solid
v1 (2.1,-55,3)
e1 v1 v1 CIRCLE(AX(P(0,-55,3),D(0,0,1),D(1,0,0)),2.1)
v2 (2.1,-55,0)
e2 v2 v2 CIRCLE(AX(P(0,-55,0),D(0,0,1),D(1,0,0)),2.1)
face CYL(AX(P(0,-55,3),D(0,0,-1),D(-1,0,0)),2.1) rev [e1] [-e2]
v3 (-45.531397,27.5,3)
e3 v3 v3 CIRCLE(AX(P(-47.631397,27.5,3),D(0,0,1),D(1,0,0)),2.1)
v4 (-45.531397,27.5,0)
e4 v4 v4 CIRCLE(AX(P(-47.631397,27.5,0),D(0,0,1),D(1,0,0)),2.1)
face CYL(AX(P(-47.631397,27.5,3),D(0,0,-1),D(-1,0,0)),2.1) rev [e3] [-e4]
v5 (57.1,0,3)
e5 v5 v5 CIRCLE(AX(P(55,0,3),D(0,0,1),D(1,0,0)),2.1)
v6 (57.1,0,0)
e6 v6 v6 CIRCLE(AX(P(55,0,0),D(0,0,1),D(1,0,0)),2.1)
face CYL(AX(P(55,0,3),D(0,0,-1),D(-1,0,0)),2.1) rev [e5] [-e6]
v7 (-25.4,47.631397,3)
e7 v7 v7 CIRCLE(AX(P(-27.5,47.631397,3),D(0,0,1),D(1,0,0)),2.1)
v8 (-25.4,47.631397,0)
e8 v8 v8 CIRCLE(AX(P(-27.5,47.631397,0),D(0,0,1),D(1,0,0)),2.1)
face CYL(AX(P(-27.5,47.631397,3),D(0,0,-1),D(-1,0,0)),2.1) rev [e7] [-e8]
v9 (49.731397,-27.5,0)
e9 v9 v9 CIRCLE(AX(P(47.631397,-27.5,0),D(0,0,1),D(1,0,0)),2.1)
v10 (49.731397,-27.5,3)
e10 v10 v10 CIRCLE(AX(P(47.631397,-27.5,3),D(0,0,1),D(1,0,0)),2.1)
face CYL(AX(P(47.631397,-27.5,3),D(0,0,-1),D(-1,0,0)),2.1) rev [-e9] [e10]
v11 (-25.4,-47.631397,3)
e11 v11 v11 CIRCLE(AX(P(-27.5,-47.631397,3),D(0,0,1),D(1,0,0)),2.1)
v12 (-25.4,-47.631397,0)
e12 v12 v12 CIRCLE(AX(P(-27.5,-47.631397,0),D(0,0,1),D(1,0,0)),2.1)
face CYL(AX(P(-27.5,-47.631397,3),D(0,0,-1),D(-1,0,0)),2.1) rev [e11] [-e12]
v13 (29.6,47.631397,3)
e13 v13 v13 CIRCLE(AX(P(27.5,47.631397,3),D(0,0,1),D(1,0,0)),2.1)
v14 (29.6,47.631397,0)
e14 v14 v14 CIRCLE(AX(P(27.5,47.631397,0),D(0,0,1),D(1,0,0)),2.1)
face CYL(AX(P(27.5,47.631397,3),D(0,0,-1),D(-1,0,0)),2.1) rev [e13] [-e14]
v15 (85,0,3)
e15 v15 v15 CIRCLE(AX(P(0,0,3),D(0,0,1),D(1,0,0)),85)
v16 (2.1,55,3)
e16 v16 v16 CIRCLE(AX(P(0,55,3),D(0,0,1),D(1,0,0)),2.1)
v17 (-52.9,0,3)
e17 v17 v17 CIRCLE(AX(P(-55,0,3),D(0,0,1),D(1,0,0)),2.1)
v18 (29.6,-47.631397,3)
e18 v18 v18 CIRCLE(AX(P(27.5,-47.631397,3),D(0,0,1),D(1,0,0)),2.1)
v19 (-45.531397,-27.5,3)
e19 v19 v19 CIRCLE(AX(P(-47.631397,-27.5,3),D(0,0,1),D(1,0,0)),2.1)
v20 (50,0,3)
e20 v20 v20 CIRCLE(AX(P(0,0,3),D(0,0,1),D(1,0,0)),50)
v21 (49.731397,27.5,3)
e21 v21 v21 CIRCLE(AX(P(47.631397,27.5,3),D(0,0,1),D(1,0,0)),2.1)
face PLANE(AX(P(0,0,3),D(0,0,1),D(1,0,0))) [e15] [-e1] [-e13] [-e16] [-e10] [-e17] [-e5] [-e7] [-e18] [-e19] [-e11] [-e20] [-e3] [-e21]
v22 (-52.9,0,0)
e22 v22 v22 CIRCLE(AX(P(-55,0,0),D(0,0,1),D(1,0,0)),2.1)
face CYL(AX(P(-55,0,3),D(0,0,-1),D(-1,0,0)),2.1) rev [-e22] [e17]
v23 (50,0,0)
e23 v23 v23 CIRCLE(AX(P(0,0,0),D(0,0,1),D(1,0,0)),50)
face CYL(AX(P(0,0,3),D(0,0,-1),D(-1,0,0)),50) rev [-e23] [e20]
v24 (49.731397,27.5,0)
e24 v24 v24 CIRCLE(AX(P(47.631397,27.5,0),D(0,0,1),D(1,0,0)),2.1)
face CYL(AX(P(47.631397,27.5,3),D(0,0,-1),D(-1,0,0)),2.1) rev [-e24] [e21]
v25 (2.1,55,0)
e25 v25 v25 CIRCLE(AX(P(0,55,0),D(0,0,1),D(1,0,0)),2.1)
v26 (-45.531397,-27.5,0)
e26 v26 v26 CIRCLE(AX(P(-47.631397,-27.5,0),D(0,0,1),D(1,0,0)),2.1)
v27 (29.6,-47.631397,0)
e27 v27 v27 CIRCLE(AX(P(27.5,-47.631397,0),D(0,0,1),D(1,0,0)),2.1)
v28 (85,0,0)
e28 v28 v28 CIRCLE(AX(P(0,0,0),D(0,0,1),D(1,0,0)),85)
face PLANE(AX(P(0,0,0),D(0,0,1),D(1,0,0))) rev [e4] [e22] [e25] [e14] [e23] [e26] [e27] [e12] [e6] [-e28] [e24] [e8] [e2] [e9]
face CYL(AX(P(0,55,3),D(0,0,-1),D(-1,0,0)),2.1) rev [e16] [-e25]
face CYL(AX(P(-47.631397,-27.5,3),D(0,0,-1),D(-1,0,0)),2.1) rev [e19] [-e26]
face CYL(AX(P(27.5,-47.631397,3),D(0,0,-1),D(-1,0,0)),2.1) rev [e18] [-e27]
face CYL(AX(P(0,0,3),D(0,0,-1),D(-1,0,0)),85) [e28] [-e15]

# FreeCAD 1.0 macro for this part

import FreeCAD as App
import Part
import Sketcher
from FreeCAD import Vector

doc = App.newDocument("Part")
params = doc.addObject("Spreadsheet::Sheet", "Params")
for row, (alias, value) in enumerate([
    ("sketch1_diameter", "170 mm"),
    ("sketch1_diameter2", "100 mm"),
    ("sketch1_diameter3", "4.2 mm"),
    ("pad1_length", "3 mm"),
], start=1):
    params.set(f"A{row}", alias)
    params.set(f"B{row}", "=" + value)
    params.setAlias(f"B{row}", alias)

body = doc.addObject("PartDesign::Body", "Body")

# Sketch on XY plane
sketch1 = body.newObject("Sketcher::SketchObject", "Sketch")
sketch1.AttachmentSupport = (doc.getObject("XY_Plane"), [""])
sketch1.MapMode = "FlatFace"
sketch1.addGeometry(Part.Circle(Vector(0, 0, 0), Vector(0, 0, 1), 85), False)
sketch1.addGeometry(Part.Circle(Vector(-27.5, -47.6, 0), Vector(0, 0, 1), 2.1), False)
sketch1.addGeometry(Part.Circle(Vector(-47.6, -27.5, 0), Vector(0, 0, 1), 2.1), False)
sketch1.addGeometry(Part.Circle(Vector(0, -55, 0), Vector(0, 0, 1), 2.1), False)
sketch1.addGeometry(Part.Circle(Vector(27.5, -47.6, 0), Vector(0, 0, 1), 2.1), False)
sketch1.addGeometry(Part.Circle(Vector(47.6, -27.5, 0), Vector(0, 0, 1), 2.1), False)
sketch1.addGeometry(Part.Circle(Vector(-55, 0, 0), Vector(0, 0, 1), 2.1), False)
sketch1.addGeometry(Part.Circle(Vector(-47.6, 27.5, 0), Vector(0, 0, 1), 2.1), False)
sketch1.addGeometry(Part.Circle(Vector(-27.5, 47.6, 0), Vector(0, 0, 1), 2.1), False)
sketch1.addGeometry(Part.Circle(Vector(0, 0, 0), Vector(0, 0, 1), 50), False)
sketch1.addGeometry(Part.Circle(Vector(55, 0, 0), Vector(0, 0, 1), 2.1), False)
sketch1.addGeometry(Part.Circle(Vector(47.6, 27.5, 0), Vector(0, 0, 1), 2.1), False)
sketch1.addGeometry(Part.Circle(Vector(0, 55, 0), Vector(0, 0, 1), 2.1), False)
sketch1.addGeometry(Part.Circle(Vector(27.5, 47.6, 0), Vector(0, 0, 1), 2.1), False)
sketch1.addConstraint(Sketcher.Constraint("Coincident", 0, 3, -1, 1))
sketch1.addConstraint(Sketcher.Constraint("Coincident", 9, 3, -1, 1))
sketch1.addConstraint(Sketcher.Constraint("Equal", 1, 2))
sketch1.addConstraint(Sketcher.Constraint("Equal", 2, 3))
sketch1.addConstraint(Sketcher.Constraint("Equal", 3, 4))
sketch1.addConstraint(Sketcher.Constraint("Equal", 4, 5))
sketch1.addConstraint(Sketcher.Constraint("Equal", 5, 6))
sketch1.addConstraint(Sketcher.Constraint("Equal", 6, 7))
sketch1.addConstraint(Sketcher.Constraint("Equal", 7, 8))
sketch1.addConstraint(Sketcher.Constraint("Equal", 8, 10))
sketch1.addConstraint(Sketcher.Constraint("Equal", 10, 11))
sketch1.addConstraint(Sketcher.Constraint("Equal", 11, 12))
sketch1.addConstraint(Sketcher.Constraint("Equal", 12, 13))
sketch1.addConstraint(Sketcher.Constraint("Symmetric", 5, 3, 7, 3, -1, 1))
sketch1.addConstraint(Sketcher.Constraint("Symmetric", 4, 3, 8, 3, -1, 1))
sketch1.addConstraint(Sketcher.Constraint("Symmetric", 6, 3, 10, 3, -1, 1))
sketch1.addConstraint(Sketcher.Constraint("Symmetric", 2, 3, 11, 3, -1, 1))
sketch1.addConstraint(Sketcher.Constraint("Symmetric", 3, 3, 12, 3, -1, 1))
sketch1.addConstraint(Sketcher.Constraint("Symmetric", 1, 3, 13, 3, -1, 1))
sketch1.addConstraint(Sketcher.Constraint("Symmetric", 1, 3, 4, 3, -2))
sketch1.addConstraint(Sketcher.Constraint("Symmetric", 2, 3, 5, 3, -2))
sketch1.addConstraint(Sketcher.Constraint("PointOnObject", 3, 3, -2))
sketch1.addConstraint(Sketcher.Constraint("PointOnObject", 6, 3, -1))
sketch1.addConstraint(Sketcher.Constraint("Diameter", 0, 170.0))
sketch1.addConstraint(Sketcher.Constraint("Diameter", 9, 100.0))
sketch1.addConstraint(Sketcher.Constraint("Diameter", 1, 4.2))
sketch1.addConstraint(Sketcher.Constraint("DistanceY", 3, 3, -1, 1, 55.0))
sketch1.addConstraint(Sketcher.Constraint("DistanceX", 6, 3, -1, 1, 55.0))
sketch1.addConstraint(Sketcher.Constraint("DistanceX", 1, 3, 4, 3, 55.0))
sketch1.addConstraint(Sketcher.Constraint("DistanceY", 2, 3, 7, 3, 55.0))
sketch1.addConstraint(Sketcher.Constraint("DistanceY", 1, 3, -1, 1, 47.631397))
sketch1.addConstraint(Sketcher.Constraint("DistanceX", 2, 3, -1, 1, 47.631397))
sketch1.setExpression("Constraints[23]", "Params.sketch1_diameter")
sketch1.setExpression("Constraints[24]", "Params.sketch1_diameter2")
sketch1.setExpression("Constraints[25]", "Params.sketch1_diameter3")
pad1 = body.newObject("PartDesign::Pad", "Pad")
pad1.Profile = sketch1
pad1.setExpression("Length", "Params.pad1_length")

doc.recompute()
